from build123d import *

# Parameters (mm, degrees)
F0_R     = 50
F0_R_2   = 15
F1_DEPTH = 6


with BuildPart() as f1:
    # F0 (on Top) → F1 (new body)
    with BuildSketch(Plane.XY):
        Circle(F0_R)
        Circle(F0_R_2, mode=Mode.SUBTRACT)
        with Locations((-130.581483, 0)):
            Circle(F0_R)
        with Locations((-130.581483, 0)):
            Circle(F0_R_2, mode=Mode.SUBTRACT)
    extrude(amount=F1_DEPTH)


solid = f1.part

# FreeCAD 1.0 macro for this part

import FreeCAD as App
import Part
import Sketcher

V = App.Vector

doc = App.newDocument("Part")
body = doc.addObject("PartDesign::Body", "Body")
body.AllowCompound = True

# Sketch on XY plane
sketch1 = doc.addObject("Sketcher::SketchObject", "Sketch")
body.addObject(sketch1)
sketch1.AttachmentSupport = (doc.XY_Plane, [""])
sketch1.MapMode = "FlatFace"
sketch1.addGeometry([
    Part.Circle(V(0, 0, 0), V(0, 0, 1), 50),
    Part.Circle(V(0, 0, 0), V(0, 0, 1), 15),
    Part.Circle(V(-131, 0, 0), V(0, 0, 1), 50),
    Part.Circle(V(-131, 0, 0), V(0, 0, 1), 15),
], False)
sketch1.addConstraint([
    Sketcher.Constraint("Coincident", 0, 3, -1, 1),
    Sketcher.Constraint("Coincident", 1, 3, -1, 1),
    Sketcher.Constraint("Coincident", 3, 3, 2, 3),
    Sketcher.Constraint("Equal", 0, 2),
    Sketcher.Constraint("Equal", 1, 3),
    Sketcher.Constraint("PointOnObject", 2, 3, -1),
    Sketcher.Constraint("Diameter", 0, 100.0),
    Sketcher.Constraint("Diameter", 1, 30.0),
    Sketcher.Constraint("DistanceX", 2, 3, -1, 1, 130.581483),
])
pad1 = doc.addObject("PartDesign::Pad", "Pad")
body.addObject(pad1)
pad1.Profile = sketch1
pad1.Length = 6

doc.recompute()
